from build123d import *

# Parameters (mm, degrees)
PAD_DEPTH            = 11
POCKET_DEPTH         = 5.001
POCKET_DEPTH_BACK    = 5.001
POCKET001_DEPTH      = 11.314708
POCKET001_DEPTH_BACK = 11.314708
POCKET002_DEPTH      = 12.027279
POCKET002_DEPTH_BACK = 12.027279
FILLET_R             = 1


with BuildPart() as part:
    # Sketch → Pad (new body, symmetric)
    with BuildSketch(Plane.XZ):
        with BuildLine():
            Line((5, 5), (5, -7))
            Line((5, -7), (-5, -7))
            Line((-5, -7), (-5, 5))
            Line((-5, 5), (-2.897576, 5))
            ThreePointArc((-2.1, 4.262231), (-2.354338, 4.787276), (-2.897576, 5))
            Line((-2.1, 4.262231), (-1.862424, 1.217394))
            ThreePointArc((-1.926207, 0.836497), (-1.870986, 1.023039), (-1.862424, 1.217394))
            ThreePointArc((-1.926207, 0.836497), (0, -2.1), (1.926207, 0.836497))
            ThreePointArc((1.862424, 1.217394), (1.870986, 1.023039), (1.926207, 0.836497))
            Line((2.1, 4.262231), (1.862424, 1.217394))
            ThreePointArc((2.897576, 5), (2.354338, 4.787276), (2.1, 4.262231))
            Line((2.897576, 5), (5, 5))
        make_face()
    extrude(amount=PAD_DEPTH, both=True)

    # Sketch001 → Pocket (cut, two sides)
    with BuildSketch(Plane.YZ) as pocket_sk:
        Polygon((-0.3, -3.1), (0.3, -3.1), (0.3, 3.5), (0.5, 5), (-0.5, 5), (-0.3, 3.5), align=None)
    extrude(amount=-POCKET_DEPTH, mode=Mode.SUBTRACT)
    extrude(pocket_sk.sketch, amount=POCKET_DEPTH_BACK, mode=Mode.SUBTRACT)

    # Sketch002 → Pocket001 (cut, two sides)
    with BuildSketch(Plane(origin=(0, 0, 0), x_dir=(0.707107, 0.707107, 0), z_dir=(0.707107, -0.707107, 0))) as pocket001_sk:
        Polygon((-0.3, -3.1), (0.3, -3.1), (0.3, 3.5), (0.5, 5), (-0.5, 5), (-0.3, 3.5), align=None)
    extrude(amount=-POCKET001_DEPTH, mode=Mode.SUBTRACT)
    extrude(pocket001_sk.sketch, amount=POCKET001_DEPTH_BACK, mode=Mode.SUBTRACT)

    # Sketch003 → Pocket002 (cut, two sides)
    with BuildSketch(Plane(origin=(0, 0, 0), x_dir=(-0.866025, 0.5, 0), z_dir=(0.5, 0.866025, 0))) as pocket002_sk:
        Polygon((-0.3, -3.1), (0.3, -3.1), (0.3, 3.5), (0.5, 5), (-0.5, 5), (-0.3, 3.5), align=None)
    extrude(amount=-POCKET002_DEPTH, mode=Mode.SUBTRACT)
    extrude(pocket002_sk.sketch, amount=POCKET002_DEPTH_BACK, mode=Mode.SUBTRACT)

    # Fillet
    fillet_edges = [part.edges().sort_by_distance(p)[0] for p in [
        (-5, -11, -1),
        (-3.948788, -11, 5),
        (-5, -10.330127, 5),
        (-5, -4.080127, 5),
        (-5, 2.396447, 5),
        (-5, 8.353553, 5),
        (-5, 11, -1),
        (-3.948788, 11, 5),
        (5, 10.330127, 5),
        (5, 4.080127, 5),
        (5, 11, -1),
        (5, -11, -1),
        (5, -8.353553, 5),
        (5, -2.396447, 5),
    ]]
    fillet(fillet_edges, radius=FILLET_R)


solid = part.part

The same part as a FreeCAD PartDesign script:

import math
import FreeCAD as App
import Part
import Sketcher


def edges_at(feature, points):
    """Names of the edges that pass closest to the given points."""
    edges = feature.Shape.Edges
    near = lambda p: min(range(len(edges)), key=lambda i: edges[i].distToShape(Part.Vertex(*p))[0])
    return sorted({f"Edge{near(p) + 1}" for p in points})

doc = App.newDocument("Part")
body = doc.addObject("PartDesign::Body", "Body")

# Sketch on XZ plane
sketch1 = body.newObject("Sketcher::SketchObject", "Sketch")
sketch1.AttachmentSupport = (doc.getObject("XZ_Plane"), [""])
sketch1.MapMode = "FlatFace"
sketch1.addGeometry(Part.LineSegment(App.Vector(5, -7, 0), App.Vector(5, 5, 0)), False)
sketch1.addGeometry(Part.LineSegment(App.Vector(5, 5, 0), App.Vector(2.9, 5, 0)), False)
sketch1.addGeometry(Part.ArcOfCircle(Part.Circle(App.Vector(2.9, 4.2, 0), App.Vector(0, 0, 1), 0.8), math.radians(90), math.radians(176)), False)
sketch1.addGeometry(Part.LineSegment(App.Vector(2.1, 4.26, 0), App.Vector(1.86, 1.22, 0)), False)
sketch1.addGeometry(Part.ArcOfCircle(Part.Circle(App.Vector(2.66, 1.16, 0), App.Vector(0, 0, 1), 0.8), math.radians(176), math.radians(203)), False)
sketch1.addGeometry(Part.ArcOfCircle(Part.Circle(App.Vector(0, 0, 0), App.Vector(0, 0, 1), 2.1), math.radians(157), math.radians(383)), False)
sketch1.addGeometry(Part.ArcOfCircle(Part.Circle(App.Vector(-2.66, 1.16, 0), App.Vector(0, 0, 1), 0.8), math.radians(-23), math.radians(4)), False)
sketch1.addGeometry(Part.LineSegment(App.Vector(-1.86, 1.22, 0), App.Vector(-2.1, 4.26, 0)), False)
sketch1.addGeometry(Part.ArcOfCircle(Part.Circle(App.Vector(-2.9, 4.2, 0), App.Vector(0, 0, 1), 0.8), math.radians(4), math.radians(90)), False)
sketch1.addGeometry(Part.LineSegment(App.Vector(-2.9, 5, 0), App.Vector(-5, 5, 0)), False)
sketch1.addGeometry(Part.LineSegment(App.Vector(-5, 5, 0), App.Vector(-5, -7, 0)), False)
sketch1.addGeometry(Part.LineSegment(App.Vector(-5, -7, 0), App.Vector(5, -7, 0)), False)
sketch1.addConstraint(Sketcher.Constraint("Coincident", 0, 2, 1, 1))
sketch1.addConstraint(Sketcher.Constraint("Tangent", 1, 2, 2, 1))
sketch1.addConstraint(Sketcher.Constraint("Tangent", 2, 2, 3, 1))
sketch1.addConstraint(Sketcher.Constraint("Coincident", 3, 2, 4, 1))
sketch1.addConstraint(Sketcher.Constraint("Tangent", 4, 2, 5, 2))
sketch1.addConstraint(Sketcher.Constraint("Tangent", 5, 1, 6, 1))
sketch1.addConstraint(Sketcher.Constraint("Coincident", 6, 2, 7, 1))
sketch1.addConstraint(Sketcher.Constraint("Tangent", 7, 2, 8, 1))
sketch1.addConstraint(Sketcher.Constraint("Tangent", 8, 2, 9, 1))
sketch1.addConstraint(Sketcher.Constraint("Coincident", 9, 2, 10, 1))
sketch1.addConstraint(Sketcher.Constraint("Coincident", 10, 2, 11, 1))
sketch1.addConstraint(Sketcher.Constraint("Coincident", 11, 2, 0, 1))
sketch1.addConstraint(Sketcher.Constraint("Vertical", 0))
sketch1.addConstraint(Sketcher.Constraint("Horizontal", 1))
sketch1.addConstraint(Sketcher.Constraint("Horizontal", 9))
sketch1.addConstraint(Sketcher.Constraint("Vertical", 10))
sketch1.addConstraint(Sketcher.Constraint("Horizontal", 11))
sketch1.addConstraint(Sketcher.Constraint("Coincident", 5, 3, -1, 1))
sketch1.addConstraint(Sketcher.Constraint("Equal", 4, 6))
sketch1.addConstraint(Sketcher.Constraint("Equal", 2, 8))
sketch1.addConstraint(Sketcher.Constraint("Symmetric", 2, 3, 8, 3, -2))
sketch1.addConstraint(Sketcher.Constraint("Symmetric", 3, 2, 6, 2, -2))
sketch1.addConstraint(Sketcher.Constraint("Equal", 1, 9))
sketch1.addConstraint(Sketcher.Constraint("Radius", 2, 0.799999))
sketch1.addConstraint(Sketcher.Constraint("Radius", 5, 2.1))
sketch1.addConstraint(Sketcher.Constraint("DistanceX", 11, 1, 11, 2, 10.0))
sketch1.addConstraint(Sketcher.Constraint("DistanceY", 0, 1, 0, 2, 12.0))
sketch1.addConstraint(Sketcher.Constraint("DistanceY", -1, 1, 0, 2, 5.0))
sketch1.addConstraint(Sketcher.Constraint("DistanceX", -1, 1, 2, 2, 2.1))
sketch1.addConstraint(Sketcher.Constraint("Radius", 4, 0.800007))
sketch1.addConstraint(Sketcher.Constraint("DistanceX", 4, 2, 4, 3, 0.7338))
sketch1.addConstraint(Sketcher.Constraint("Distance", 3, 3.054091))
pad1 = body.newObject("PartDesign::Pad", "Pad")
pad1.Profile = sketch1
pad1.Length = 22
pad1.Midplane = True

# Sketch on YZ plane
sketch2 = body.newObject("Sketcher::SketchObject", "Sketch001")
sketch2.AttachmentSupport = (doc.getObject("YZ_Plane"), [""])
sketch2.MapMode = "FlatFace"
sketch2.addGeometry(Part.LineSegment(App.Vector(-0.3, -3.1, 0), App.Vector(0.3, -3.1, 0)), False)
sketch2.addGeometry(Part.LineSegment(App.Vector(0.3, -3.1, 0), App.Vector(0.3, 3.5, 0)), False)
sketch2.addGeometry(Part.LineSegment(App.Vector(0.3, 3.5, 0), App.Vector(0.5, 5, 0)), False)
sketch2.addGeometry(Part.LineSegment(App.Vector(0.5, 5, 0), App.Vector(-0.5, 5, 0)), False)
sketch2.addGeometry(Part.LineSegment(App.Vector(-0.5, 5, 0), App.Vector(-0.3, 3.5, 0)), False)
sketch2.addGeometry(Part.LineSegment(App.Vector(-0.3, 3.5, 0), App.Vector(-0.3, -3.1, 0)), False)
sketch2.addConstraint(Sketcher.Constraint("Coincident", 0, 2, 1, 1))
sketch2.addConstraint(Sketcher.Constraint("Coincident", 1, 2, 2, 1))
sketch2.addConstraint(Sketcher.Constraint("Coincident", 2, 2, 3, 1))
sketch2.addConstraint(Sketcher.Constraint("Coincident", 3, 2, 4, 1))
sketch2.addConstraint(Sketcher.Constraint("Coincident", 4, 2, 5, 1))
sketch2.addConstraint(Sketcher.Constraint("Coincident", 5, 2, 0, 1))
sketch2.addConstraint(Sketcher.Constraint("Horizontal", 0))
sketch2.addConstraint(Sketcher.Constraint("Vertical", 1))
sketch2.addConstraint(Sketcher.Constraint("Horizontal", 3))
sketch2.addConstraint(Sketcher.Constraint("Vertical", 5))
sketch2.addConstraint(Sketcher.Constraint("Symmetric", 1, 2, 4, 2, -2))
sketch2.addConstraint(Sketcher.Constraint("Equal", 2, 4))
sketch2.addConstraint(Sketcher.Constraint("DistanceX", 3, 2, 3, 1, 1.0))
sketch2.addConstraint(Sketcher.Constraint("DistanceX", 0, 1, 0, 2, 0.6))
sketch2.addConstraint(Sketcher.Constraint("DistanceY", 1, 1, 1, 2, 6.6))
sketch2.addConstraint(Sketcher.Constraint("DistanceY", -1, 1, 2, 2, 5.0))
sketch2.addConstraint(Sketcher.Constraint("DistanceY", 0, 2, -1, 1, 3.1))
pocket1 = body.newObject("PartDesign::Pocket", "Pocket")
pocket1.Profile = sketch2
pocket1.Type = "ThroughAll"
pocket1.Midplane = True

# Sketch on an angled plane
sketch3 = body.newObject("Sketcher::SketchObject", "Sketch002")
sketch3.Placement = App.Placement(App.Vector(0, 0, 0), App.Rotation(App.Vector(0.707106781, 0.707106781, 0), App.Vector(0, 0, 0.999999999), App.Vector(0.707106781, -0.707106781, 0), "ZXY"))
sketch3.addGeometry(Part.LineSegment(App.Vector(-0.3, -3.1, 0), App.Vector(0.3, -3.1, 0)), False)
sketch3.addGeometry(Part.LineSegment(App.Vector(0.3, -3.1, 0), App.Vector(0.3, 3.5, 0)), False)
sketch3.addGeometry(Part.LineSegment(App.Vector(0.3, 3.5, 0), App.Vector(0.5, 5, 0)), False)
sketch3.addGeometry(Part.LineSegment(App.Vector(0.5, 5, 0), App.Vector(-0.5, 5, 0)), False)
sketch3.addGeometry(Part.LineSegment(App.Vector(-0.5, 5, 0), App.Vector(-0.3, 3.5, 0)), False)
sketch3.addGeometry(Part.LineSegment(App.Vector(-0.3, 3.5, 0), App.Vector(-0.3, -3.1, 0)), False)
sketch3.addConstraint(Sketcher.Constraint("Coincident", 0, 2, 1, 1))
sketch3.addConstraint(Sketcher.Constraint("Coincident", 1, 2, 2, 1))
sketch3.addConstraint(Sketcher.Constraint("Coincident", 2, 2, 3, 1))
sketch3.addConstraint(Sketcher.Constraint("Coincident", 3, 2, 4, 1))
sketch3.addConstraint(Sketcher.Constraint("Coincident", 4, 2, 5, 1))
sketch3.addConstraint(Sketcher.Constraint("Coincident", 5, 2, 0, 1))
sketch3.addConstraint(Sketcher.Constraint("Horizontal", 0))
sketch3.addConstraint(Sketcher.Constraint("Vertical", 1))
sketch3.addConstraint(Sketcher.Constraint("Horizontal", 3))
sketch3.addConstraint(Sketcher.Constraint("Vertical", 5))
sketch3.addConstraint(Sketcher.Constraint("Symmetric", 1, 2, 4, 2, -2))
sketch3.addConstraint(Sketcher.Constraint("Equal", 2, 4))
sketch3.addConstraint(Sketcher.Constraint("DistanceX", 3, 2, 3, 1, 1.0))
sketch3.addConstraint(Sketcher.Constraint("DistanceX", 0, 1, 0, 2, 0.6))
sketch3.addConstraint(Sketcher.Constraint("DistanceY", 1, 1, 1, 2, 6.6))
sketch3.addConstraint(Sketcher.Constraint("DistanceY", -1, 1, 2, 2, 5.0))
sketch3.addConstraint(Sketcher.Constraint("DistanceY", 0, 2, -1, 1, 3.1))
pocket2 = body.newObject("PartDesign::Pocket", "Pocket001")
pocket2.Profile = sketch3
pocket2.Type = "ThroughAll"
pocket2.Midplane = True

# Sketch on an angled plane
sketch4 = body.newObject("Sketcher::SketchObject", "Sketch003")
sketch4.Placement = App.Placement(App.Vector(0, 0, 0), App.Rotation(App.Vector(-0.866025303, 0.500000175, 0), App.Vector(0, 0, 1), App.Vector(0.500000175, 0.866025303, 0), "ZXY"))
sketch4.addGeometry(Part.LineSegment(App.Vector(-0.3, -3.1, 0), App.Vector(0.3, -3.1, 0)), False)
sketch4.addGeometry(Part.LineSegment(App.Vector(0.3, -3.1, 0), App.Vector(0.3, 3.5, 0)), False)
sketch4.addGeometry(Part.LineSegment(App.Vector(0.3, 3.5, 0), App.Vector(0.5, 5, 0)), False)
sketch4.addGeometry(Part.LineSegment(App.Vector(0.5, 5, 0), App.Vector(-0.5, 5, 0)), False)
sketch4.addGeometry(Part.LineSegment(App.Vector(-0.5, 5, 0), App.Vector(-0.3, 3.5, 0)), False)
sketch4.addGeometry(Part.LineSegment(App.Vector(-0.3, 3.5, 0), App.Vector(-0.3, -3.1, 0)), False)
sketch4.addConstraint(Sketcher.Constraint("Coincident", 0, 2, 1, 1))
sketch4.addConstraint(Sketcher.Constraint("Coincident", 1, 2, 2, 1))
sketch4.addConstraint(Sketcher.Constraint("Coincident", 2, 2, 3, 1))
sketch4.addConstraint(Sketcher.Constraint("Coincident", 3, 2, 4, 1))
sketch4.addConstraint(Sketcher.Constraint("Coincident", 4, 2, 5, 1))
sketch4.addConstraint(Sketcher.Constraint("Coincident", 5, 2, 0, 1))
sketch4.addConstraint(Sketcher.Constraint("Horizontal", 0))
sketch4.addConstraint(Sketcher.Constraint("Vertical", 1))
sketch4.addConstraint(Sketcher.Constraint("Horizontal", 3))
sketch4.addConstraint(Sketcher.Constraint("Vertical", 5))
sketch4.addConstraint(Sketcher.Constraint("Symmetric", 1, 2, 4, 2, -2))
sketch4.addConstraint(Sketcher.Constraint("Equal", 2, 4))
sketch4.addConstraint(Sketcher.Constraint("DistanceX", 3, 2, 3, 1, 1.0))
sketch4.addConstraint(Sketcher.Constraint("DistanceX", 0, 1, 0, 2, 0.6))
sketch4.addConstraint(Sketcher.Constraint("DistanceY", 1, 1, 1, 2, 6.6))
sketch4.addConstraint(Sketcher.Constraint("DistanceY", -1, 1, 2, 2, 5.0))
sketch4.addConstraint(Sketcher.Constraint("DistanceY", 0, 2, -1, 1, 3.1))
pocket3 = body.newObject("PartDesign::Pocket", "Pocket002")
pocket3.Profile = sketch4
pocket3.Type = "ThroughAll"
pocket3.Midplane = True
doc.recompute()

fillet = body.newObject("PartDesign::Fillet", "Fillet")
fillet.Base = (pocket3, edges_at(pocket3, [
    (-5, -11, -1),
    (-3.949, -11, 5),
    (-5, -10.33, 5),
    (-5, -4.08, 5),
    (-5, 2.396, 5),
    (-5, 8.354, 5),
    (-5, 11, -1),
    (-3.949, 11, 5),
    (5, 10.33, 5),
    (5, 4.08, 5),
    (5, 11, -1),
    (5, -11, -1),
    (5, -8.354, 5),
    (5, -2.396, 5),
]))
fillet.Radius = 1

doc.recompute()
